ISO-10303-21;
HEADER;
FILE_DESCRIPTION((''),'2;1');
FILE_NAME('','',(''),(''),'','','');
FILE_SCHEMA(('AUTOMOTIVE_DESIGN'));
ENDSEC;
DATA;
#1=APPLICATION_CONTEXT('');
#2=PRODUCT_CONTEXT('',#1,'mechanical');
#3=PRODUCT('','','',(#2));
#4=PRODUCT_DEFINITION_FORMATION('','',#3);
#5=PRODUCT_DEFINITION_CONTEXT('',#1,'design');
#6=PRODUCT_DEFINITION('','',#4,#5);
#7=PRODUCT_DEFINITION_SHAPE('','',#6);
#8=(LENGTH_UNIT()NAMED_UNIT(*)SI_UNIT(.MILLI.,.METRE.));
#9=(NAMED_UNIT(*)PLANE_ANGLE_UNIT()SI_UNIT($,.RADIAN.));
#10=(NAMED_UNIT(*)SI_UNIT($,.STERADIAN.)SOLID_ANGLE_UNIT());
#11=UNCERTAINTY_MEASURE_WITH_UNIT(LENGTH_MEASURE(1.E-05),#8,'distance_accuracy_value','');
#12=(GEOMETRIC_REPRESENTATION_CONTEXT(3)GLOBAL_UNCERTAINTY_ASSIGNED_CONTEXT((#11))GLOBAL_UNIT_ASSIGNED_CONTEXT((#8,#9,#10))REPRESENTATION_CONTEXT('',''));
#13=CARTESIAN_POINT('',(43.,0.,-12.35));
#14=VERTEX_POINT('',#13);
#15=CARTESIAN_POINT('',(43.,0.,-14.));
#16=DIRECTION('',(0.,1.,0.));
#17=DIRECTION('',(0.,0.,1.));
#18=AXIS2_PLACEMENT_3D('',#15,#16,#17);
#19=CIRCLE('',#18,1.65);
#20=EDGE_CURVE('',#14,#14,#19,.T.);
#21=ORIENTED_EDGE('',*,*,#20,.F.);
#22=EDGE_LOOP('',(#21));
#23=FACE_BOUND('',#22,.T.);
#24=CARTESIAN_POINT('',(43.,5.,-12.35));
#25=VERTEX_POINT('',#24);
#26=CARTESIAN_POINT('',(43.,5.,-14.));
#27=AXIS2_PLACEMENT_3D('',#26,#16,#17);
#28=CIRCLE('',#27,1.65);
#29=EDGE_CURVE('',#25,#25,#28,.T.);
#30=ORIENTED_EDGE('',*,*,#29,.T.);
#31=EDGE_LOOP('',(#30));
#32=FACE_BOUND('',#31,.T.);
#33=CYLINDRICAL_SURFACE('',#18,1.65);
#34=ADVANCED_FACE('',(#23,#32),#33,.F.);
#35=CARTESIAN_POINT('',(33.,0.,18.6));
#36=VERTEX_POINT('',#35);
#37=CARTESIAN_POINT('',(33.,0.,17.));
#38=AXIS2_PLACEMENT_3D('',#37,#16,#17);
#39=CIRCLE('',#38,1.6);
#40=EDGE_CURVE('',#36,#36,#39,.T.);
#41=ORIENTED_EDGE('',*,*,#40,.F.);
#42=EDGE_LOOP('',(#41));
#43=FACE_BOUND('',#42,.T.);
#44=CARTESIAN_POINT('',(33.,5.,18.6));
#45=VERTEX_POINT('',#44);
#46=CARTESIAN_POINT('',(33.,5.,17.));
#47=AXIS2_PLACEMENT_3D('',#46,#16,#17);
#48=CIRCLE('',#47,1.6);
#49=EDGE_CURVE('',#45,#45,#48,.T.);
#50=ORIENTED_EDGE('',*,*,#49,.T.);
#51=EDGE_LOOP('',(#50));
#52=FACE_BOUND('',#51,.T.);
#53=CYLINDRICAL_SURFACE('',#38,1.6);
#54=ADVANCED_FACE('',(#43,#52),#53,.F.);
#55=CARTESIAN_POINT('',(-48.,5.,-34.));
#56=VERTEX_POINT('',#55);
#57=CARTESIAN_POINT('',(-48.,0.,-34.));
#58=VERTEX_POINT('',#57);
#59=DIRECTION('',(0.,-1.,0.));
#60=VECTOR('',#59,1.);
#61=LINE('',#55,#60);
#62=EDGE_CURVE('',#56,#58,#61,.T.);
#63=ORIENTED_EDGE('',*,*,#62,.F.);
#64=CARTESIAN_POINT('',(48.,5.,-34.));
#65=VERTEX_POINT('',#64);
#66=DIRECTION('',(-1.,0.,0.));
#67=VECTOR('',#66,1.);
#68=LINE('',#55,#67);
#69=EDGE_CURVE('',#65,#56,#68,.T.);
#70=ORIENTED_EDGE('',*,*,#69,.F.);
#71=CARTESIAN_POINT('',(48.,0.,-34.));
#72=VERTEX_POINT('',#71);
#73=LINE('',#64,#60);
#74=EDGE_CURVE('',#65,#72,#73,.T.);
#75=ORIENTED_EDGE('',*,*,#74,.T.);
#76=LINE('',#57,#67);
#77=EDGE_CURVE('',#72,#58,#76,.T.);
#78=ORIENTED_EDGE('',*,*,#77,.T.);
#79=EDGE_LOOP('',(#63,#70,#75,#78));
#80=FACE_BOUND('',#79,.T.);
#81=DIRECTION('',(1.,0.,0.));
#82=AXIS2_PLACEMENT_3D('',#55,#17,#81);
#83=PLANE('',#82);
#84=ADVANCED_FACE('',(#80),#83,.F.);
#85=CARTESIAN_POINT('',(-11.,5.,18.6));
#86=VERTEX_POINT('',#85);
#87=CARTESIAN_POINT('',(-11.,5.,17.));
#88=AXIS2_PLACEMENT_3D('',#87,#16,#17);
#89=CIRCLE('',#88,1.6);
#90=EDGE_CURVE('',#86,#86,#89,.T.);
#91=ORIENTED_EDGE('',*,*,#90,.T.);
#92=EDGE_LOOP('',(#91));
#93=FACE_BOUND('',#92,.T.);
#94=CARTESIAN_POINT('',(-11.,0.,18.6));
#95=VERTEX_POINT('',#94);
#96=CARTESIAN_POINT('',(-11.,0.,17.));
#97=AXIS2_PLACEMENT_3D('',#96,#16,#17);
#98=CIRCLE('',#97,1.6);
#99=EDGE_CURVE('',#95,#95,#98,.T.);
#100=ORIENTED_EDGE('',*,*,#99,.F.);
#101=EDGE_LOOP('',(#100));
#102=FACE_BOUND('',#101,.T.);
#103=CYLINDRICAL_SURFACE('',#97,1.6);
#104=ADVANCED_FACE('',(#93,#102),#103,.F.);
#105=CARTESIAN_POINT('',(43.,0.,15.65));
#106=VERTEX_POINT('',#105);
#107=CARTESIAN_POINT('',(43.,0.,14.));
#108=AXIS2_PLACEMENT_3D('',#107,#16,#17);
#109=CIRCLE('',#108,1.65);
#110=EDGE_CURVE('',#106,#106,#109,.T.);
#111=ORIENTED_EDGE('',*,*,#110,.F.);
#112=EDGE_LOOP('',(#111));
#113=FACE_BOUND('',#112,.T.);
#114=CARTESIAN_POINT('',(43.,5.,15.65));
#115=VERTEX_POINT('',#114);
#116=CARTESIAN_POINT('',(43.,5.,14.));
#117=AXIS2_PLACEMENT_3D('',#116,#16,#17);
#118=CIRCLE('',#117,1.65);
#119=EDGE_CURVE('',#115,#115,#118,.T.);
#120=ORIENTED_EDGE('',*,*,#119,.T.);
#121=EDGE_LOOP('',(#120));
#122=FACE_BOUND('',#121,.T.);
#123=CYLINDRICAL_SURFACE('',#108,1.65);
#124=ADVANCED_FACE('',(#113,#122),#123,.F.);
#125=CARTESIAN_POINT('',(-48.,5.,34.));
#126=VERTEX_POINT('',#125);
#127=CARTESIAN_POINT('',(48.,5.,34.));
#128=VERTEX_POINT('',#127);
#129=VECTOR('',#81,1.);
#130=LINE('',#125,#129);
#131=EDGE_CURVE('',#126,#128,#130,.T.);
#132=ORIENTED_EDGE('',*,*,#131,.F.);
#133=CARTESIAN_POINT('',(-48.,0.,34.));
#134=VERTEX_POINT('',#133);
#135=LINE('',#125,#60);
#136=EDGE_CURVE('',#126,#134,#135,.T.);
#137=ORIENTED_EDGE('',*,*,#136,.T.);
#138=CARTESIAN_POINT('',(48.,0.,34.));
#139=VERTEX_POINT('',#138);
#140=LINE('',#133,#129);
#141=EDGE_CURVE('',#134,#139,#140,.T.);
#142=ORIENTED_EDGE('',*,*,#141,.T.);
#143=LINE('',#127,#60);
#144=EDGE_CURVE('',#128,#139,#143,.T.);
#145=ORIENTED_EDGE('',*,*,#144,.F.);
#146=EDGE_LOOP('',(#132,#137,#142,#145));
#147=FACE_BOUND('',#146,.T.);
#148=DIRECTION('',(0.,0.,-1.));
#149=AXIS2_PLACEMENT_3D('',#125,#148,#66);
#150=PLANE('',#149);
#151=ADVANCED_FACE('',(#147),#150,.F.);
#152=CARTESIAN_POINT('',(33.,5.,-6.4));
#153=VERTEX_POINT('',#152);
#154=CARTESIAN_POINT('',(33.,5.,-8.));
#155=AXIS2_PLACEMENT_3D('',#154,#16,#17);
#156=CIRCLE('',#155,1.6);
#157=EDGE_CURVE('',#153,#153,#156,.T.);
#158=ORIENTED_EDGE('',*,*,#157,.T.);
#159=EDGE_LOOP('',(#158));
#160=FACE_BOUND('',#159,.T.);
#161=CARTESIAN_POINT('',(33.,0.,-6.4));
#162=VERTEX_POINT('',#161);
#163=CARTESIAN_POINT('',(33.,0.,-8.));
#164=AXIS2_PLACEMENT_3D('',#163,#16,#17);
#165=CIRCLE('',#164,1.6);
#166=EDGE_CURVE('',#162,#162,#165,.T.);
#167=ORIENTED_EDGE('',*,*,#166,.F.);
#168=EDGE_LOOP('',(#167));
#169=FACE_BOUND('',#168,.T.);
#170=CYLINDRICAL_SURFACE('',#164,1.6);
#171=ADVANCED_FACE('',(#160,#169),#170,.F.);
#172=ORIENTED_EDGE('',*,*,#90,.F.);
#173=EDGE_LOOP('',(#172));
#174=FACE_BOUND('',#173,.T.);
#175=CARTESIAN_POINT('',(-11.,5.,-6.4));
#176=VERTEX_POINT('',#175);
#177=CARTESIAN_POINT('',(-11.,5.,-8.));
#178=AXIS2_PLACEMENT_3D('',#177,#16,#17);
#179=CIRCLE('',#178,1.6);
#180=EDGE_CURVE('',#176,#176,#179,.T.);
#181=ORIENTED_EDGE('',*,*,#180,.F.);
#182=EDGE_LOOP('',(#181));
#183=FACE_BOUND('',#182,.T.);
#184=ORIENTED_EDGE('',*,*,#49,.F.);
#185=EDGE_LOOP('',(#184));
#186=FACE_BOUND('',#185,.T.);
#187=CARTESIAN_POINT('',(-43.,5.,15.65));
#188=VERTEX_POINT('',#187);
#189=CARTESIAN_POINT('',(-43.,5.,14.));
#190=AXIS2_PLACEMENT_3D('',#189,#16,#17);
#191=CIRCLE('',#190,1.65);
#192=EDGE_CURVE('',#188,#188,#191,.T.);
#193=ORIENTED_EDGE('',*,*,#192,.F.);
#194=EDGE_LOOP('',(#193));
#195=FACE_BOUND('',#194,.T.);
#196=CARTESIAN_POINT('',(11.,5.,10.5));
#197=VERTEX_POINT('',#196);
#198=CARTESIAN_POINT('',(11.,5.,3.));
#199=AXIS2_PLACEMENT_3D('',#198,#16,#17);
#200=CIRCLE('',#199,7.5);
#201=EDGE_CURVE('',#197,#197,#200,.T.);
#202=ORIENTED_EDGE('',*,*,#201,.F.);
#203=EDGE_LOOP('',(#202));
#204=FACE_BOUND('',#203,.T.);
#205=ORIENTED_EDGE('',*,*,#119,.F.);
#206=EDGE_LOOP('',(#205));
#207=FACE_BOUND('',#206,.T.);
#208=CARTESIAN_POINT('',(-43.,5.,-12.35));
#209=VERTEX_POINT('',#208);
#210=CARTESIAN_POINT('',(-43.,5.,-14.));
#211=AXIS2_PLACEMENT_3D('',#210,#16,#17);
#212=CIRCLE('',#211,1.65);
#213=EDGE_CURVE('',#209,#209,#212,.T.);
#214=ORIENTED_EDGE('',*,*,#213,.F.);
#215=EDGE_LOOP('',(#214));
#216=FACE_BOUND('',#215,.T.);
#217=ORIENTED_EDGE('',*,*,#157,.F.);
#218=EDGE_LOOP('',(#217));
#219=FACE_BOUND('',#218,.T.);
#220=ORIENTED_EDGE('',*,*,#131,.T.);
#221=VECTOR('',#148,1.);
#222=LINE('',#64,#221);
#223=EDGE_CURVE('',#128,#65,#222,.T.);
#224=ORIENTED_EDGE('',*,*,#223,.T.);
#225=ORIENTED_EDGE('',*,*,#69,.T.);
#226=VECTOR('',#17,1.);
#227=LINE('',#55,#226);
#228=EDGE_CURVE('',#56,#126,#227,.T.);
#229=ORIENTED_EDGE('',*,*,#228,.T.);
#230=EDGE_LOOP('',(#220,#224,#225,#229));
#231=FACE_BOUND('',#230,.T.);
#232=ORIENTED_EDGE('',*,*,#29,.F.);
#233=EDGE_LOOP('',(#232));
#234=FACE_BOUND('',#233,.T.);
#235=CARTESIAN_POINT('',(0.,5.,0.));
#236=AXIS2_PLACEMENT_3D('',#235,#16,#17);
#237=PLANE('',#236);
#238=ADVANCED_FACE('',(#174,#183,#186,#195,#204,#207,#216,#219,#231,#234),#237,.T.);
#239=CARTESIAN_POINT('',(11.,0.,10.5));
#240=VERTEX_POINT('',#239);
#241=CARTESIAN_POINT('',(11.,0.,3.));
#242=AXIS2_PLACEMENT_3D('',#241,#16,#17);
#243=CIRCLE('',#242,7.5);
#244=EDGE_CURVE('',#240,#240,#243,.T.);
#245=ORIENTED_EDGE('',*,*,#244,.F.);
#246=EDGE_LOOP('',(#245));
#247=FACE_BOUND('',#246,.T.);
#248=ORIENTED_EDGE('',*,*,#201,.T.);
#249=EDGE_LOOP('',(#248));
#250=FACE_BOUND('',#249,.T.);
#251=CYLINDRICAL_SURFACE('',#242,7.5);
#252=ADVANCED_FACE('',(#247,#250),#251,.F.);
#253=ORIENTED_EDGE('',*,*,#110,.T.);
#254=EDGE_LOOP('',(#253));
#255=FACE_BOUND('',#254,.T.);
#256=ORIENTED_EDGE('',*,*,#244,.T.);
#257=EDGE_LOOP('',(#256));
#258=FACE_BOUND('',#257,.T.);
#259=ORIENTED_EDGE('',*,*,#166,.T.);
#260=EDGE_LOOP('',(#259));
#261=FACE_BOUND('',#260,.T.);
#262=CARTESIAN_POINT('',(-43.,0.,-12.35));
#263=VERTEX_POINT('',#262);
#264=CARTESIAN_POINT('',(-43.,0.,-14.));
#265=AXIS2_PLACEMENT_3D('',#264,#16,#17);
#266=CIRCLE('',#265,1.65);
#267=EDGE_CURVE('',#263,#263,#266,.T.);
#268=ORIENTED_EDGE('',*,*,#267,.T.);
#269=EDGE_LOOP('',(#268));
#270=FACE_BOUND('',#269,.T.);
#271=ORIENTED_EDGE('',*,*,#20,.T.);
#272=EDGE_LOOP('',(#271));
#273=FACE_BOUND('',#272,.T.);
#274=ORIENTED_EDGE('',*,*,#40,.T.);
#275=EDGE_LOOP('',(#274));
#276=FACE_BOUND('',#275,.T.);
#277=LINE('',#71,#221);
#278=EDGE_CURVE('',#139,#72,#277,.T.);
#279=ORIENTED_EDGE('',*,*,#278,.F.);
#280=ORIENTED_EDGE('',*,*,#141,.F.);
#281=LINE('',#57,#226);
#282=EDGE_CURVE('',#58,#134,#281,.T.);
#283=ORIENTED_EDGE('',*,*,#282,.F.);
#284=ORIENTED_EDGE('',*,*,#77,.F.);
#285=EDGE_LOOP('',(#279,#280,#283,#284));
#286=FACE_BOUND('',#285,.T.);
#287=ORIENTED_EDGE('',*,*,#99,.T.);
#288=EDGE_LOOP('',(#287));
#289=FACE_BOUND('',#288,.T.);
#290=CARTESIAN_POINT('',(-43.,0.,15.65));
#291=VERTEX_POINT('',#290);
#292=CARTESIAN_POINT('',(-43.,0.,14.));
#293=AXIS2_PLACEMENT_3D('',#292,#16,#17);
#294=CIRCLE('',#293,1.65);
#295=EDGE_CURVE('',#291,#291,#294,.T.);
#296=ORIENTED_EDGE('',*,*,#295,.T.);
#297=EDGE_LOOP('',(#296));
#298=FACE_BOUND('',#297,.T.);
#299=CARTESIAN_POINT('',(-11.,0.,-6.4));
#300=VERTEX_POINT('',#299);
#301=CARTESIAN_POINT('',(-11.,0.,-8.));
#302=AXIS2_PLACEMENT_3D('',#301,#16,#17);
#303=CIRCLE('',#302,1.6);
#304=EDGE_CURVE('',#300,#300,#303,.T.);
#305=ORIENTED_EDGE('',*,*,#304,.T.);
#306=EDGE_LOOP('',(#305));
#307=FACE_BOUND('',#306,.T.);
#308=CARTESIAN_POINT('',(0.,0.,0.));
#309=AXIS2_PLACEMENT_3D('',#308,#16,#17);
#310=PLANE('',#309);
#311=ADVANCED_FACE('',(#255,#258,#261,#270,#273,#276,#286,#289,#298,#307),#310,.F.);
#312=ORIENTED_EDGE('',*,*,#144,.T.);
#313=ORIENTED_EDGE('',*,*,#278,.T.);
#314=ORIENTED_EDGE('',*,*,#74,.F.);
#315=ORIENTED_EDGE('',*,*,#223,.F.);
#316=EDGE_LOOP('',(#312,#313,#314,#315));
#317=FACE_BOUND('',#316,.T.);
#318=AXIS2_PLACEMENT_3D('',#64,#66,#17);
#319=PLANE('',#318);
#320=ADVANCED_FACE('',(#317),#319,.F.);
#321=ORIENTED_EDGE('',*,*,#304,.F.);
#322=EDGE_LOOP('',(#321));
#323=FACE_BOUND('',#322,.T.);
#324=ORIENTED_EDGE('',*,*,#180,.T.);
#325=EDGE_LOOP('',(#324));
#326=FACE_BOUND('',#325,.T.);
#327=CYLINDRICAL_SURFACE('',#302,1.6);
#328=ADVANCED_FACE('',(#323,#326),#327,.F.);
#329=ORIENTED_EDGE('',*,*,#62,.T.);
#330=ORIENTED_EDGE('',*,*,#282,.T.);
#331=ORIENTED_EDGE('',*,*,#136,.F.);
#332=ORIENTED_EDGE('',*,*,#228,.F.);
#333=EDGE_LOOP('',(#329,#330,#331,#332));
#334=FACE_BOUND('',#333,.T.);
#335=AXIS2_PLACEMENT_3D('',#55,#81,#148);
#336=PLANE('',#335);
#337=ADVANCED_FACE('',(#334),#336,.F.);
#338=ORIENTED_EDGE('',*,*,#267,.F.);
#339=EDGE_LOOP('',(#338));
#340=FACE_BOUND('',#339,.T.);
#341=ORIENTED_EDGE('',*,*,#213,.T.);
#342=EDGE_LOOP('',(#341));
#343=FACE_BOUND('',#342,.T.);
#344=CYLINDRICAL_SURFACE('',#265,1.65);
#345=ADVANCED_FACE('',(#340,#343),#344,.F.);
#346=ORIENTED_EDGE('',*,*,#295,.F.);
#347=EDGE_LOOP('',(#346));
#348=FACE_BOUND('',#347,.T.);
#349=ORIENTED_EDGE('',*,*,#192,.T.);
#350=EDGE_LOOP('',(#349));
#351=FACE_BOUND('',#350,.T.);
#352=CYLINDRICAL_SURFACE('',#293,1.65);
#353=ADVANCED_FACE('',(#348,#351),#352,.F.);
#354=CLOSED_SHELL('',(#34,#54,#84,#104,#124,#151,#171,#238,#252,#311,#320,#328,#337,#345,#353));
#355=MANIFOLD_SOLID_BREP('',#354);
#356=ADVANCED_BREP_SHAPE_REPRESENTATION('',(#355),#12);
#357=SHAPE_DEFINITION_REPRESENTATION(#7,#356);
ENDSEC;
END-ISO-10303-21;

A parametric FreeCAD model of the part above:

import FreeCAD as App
import Part
import Sketcher


def add_polygon(sketch, points):
    """Adds a closed chain of lines whose ends are joined by coincident constraints."""
    first, n = sketch.GeometryCount, len(points)
    for a, b in zip(points, points[1:] + points[:1]):
        sketch.addGeometry(Part.LineSegment(App.Vector(*a, 0), App.Vector(*b, 0)), False)
    for i in range(n):
        sketch.addConstraint(Sketcher.Constraint("Coincident", first + i, 2, first + (i + 1) % n, 1))

doc = App.newDocument("Part")
body = doc.addObject("PartDesign::Body", "Body")

# Sketch on XZ plane
sketch1 = body.newObject("Sketcher::SketchObject", "Sketch")
sketch1.AttachmentSupport = (doc.getObject("XZ_Plane"), [""])
sketch1.MapMode = "FlatFace"
add_polygon(sketch1, [(-48, -34), (-48, 34), (48, 34), (48, -34)])  # lines 0-3
sketch1.addConstraint([
    Sketcher.Constraint("Vertical", 0),
    Sketcher.Constraint("Horizontal", 1),
    Sketcher.Constraint("Vertical", 2),
    Sketcher.Constraint("Horizontal", 3),
    Sketcher.Constraint("Symmetric", 0, 2, 2, 2, -1, 1),
    Sketcher.Constraint("DistanceX", 1, 1, 1, 2, 96.0),
    Sketcher.Constraint("DistanceY", 0, 1, 0, 2, 68.0),
])
pad1 = body.newObject("PartDesign::Pad", "Pad")
pad1.Profile = sketch1
pad1.Length = 5
pad1.Reversed = True

# Sketch on XZ plane
sketch2 = body.newObject("Sketcher::SketchObject", "Sketch001")
sketch2.AttachmentSupport = (doc.getObject("XZ_Plane"), [""])
sketch2.MapMode = "FlatFace"
sketch2.AttachmentOffset = App.Placement(App.Vector(0, 0, -5), App.Rotation())
sketch2.addGeometry([
    Part.Circle(App.Vector(-43, -14, 0), App.Vector(0, 0, 1), 1.65),  # 0
    Part.Circle(App.Vector(43, -14, 0), App.Vector(0, 0, 1), 1.65),  # 1
    Part.Circle(App.Vector(43, 14, 0), App.Vector(0, 0, 1), 1.65),  # 2
    Part.Circle(App.Vector(-43, 14, 0), App.Vector(0, 0, 1), 1.65),  # 3
    Part.Circle(App.Vector(-11, -8, 0), App.Vector(0, 0, 1), 1.6),  # 4
    Part.Circle(App.Vector(33, -8, 0), App.Vector(0, 0, 1), 1.6),  # 5
    Part.Circle(App.Vector(33, 17, 0), App.Vector(0, 0, 1), 1.6),  # 6
    Part.Circle(App.Vector(-11, 17, 0), App.Vector(0, 0, 1), 1.6),  # 7
    Part.Circle(App.Vector(11, 3, 0), App.Vector(0, 0, 1), 7.5),  # 8
], False)
sketch2.addConstraint([
    Sketcher.Constraint("Equal", 0, 1),
    Sketcher.Constraint("Equal", 1, 2),
    Sketcher.Constraint("Equal", 2, 3),
    Sketcher.Constraint("Equal", 4, 5),
    Sketcher.Constraint("Equal", 5, 6),
    Sketcher.Constraint("Equal", 6, 7),
    Sketcher.Constraint("Symmetric", 0, 3, 2, 3, -1, 1),
    Sketcher.Constraint("Symmetric", 1, 3, 3, 3, -1, 1),
    Sketcher.Constraint("Symmetric", 0, 3, 1, 3, -2),
    Sketcher.Constraint("Horizontal", 4, 3, 5, 3),
    Sketcher.Constraint("Horizontal", 6, 3, 7, 3),
    Sketcher.Constraint("Vertical", 5, 3, 6, 3),
    Sketcher.Constraint("Vertical", 4, 3, 7, 3),
    Sketcher.Constraint("Diameter", 8, 15.0),
    Sketcher.Constraint("Diameter", 0, 3.3),
    Sketcher.Constraint("Diameter", 4, 3.2),
    Sketcher.Constraint("DistanceX", 0, 3, -1, 1, 43.0),
    Sketcher.Constraint("DistanceY", 0, 3, -1, 1, 14.0),
    Sketcher.Constraint("DistanceX", 4, 3, -1, 1, 11.0),
    Sketcher.Constraint("DistanceY", 4, 3, -1, 1, 8.0),
    Sketcher.Constraint("DistanceX", -1, 1, 5, 3, 33.0),
    Sketcher.Constraint("DistanceY", -1, 1, 6, 3, 17.0),
    Sketcher.Constraint("DistanceX", -1, 1, 8, 3, 11.0),
    Sketcher.Constraint("DistanceY", -1, 1, 8, 3, 3.0),
])
pocket1 = body.newObject("PartDesign::Pocket", "Pocket")
pocket1.Profile = sketch2
pocket1.Type = "ThroughAll"
pocket1.Reversed = True

doc.recompute()
